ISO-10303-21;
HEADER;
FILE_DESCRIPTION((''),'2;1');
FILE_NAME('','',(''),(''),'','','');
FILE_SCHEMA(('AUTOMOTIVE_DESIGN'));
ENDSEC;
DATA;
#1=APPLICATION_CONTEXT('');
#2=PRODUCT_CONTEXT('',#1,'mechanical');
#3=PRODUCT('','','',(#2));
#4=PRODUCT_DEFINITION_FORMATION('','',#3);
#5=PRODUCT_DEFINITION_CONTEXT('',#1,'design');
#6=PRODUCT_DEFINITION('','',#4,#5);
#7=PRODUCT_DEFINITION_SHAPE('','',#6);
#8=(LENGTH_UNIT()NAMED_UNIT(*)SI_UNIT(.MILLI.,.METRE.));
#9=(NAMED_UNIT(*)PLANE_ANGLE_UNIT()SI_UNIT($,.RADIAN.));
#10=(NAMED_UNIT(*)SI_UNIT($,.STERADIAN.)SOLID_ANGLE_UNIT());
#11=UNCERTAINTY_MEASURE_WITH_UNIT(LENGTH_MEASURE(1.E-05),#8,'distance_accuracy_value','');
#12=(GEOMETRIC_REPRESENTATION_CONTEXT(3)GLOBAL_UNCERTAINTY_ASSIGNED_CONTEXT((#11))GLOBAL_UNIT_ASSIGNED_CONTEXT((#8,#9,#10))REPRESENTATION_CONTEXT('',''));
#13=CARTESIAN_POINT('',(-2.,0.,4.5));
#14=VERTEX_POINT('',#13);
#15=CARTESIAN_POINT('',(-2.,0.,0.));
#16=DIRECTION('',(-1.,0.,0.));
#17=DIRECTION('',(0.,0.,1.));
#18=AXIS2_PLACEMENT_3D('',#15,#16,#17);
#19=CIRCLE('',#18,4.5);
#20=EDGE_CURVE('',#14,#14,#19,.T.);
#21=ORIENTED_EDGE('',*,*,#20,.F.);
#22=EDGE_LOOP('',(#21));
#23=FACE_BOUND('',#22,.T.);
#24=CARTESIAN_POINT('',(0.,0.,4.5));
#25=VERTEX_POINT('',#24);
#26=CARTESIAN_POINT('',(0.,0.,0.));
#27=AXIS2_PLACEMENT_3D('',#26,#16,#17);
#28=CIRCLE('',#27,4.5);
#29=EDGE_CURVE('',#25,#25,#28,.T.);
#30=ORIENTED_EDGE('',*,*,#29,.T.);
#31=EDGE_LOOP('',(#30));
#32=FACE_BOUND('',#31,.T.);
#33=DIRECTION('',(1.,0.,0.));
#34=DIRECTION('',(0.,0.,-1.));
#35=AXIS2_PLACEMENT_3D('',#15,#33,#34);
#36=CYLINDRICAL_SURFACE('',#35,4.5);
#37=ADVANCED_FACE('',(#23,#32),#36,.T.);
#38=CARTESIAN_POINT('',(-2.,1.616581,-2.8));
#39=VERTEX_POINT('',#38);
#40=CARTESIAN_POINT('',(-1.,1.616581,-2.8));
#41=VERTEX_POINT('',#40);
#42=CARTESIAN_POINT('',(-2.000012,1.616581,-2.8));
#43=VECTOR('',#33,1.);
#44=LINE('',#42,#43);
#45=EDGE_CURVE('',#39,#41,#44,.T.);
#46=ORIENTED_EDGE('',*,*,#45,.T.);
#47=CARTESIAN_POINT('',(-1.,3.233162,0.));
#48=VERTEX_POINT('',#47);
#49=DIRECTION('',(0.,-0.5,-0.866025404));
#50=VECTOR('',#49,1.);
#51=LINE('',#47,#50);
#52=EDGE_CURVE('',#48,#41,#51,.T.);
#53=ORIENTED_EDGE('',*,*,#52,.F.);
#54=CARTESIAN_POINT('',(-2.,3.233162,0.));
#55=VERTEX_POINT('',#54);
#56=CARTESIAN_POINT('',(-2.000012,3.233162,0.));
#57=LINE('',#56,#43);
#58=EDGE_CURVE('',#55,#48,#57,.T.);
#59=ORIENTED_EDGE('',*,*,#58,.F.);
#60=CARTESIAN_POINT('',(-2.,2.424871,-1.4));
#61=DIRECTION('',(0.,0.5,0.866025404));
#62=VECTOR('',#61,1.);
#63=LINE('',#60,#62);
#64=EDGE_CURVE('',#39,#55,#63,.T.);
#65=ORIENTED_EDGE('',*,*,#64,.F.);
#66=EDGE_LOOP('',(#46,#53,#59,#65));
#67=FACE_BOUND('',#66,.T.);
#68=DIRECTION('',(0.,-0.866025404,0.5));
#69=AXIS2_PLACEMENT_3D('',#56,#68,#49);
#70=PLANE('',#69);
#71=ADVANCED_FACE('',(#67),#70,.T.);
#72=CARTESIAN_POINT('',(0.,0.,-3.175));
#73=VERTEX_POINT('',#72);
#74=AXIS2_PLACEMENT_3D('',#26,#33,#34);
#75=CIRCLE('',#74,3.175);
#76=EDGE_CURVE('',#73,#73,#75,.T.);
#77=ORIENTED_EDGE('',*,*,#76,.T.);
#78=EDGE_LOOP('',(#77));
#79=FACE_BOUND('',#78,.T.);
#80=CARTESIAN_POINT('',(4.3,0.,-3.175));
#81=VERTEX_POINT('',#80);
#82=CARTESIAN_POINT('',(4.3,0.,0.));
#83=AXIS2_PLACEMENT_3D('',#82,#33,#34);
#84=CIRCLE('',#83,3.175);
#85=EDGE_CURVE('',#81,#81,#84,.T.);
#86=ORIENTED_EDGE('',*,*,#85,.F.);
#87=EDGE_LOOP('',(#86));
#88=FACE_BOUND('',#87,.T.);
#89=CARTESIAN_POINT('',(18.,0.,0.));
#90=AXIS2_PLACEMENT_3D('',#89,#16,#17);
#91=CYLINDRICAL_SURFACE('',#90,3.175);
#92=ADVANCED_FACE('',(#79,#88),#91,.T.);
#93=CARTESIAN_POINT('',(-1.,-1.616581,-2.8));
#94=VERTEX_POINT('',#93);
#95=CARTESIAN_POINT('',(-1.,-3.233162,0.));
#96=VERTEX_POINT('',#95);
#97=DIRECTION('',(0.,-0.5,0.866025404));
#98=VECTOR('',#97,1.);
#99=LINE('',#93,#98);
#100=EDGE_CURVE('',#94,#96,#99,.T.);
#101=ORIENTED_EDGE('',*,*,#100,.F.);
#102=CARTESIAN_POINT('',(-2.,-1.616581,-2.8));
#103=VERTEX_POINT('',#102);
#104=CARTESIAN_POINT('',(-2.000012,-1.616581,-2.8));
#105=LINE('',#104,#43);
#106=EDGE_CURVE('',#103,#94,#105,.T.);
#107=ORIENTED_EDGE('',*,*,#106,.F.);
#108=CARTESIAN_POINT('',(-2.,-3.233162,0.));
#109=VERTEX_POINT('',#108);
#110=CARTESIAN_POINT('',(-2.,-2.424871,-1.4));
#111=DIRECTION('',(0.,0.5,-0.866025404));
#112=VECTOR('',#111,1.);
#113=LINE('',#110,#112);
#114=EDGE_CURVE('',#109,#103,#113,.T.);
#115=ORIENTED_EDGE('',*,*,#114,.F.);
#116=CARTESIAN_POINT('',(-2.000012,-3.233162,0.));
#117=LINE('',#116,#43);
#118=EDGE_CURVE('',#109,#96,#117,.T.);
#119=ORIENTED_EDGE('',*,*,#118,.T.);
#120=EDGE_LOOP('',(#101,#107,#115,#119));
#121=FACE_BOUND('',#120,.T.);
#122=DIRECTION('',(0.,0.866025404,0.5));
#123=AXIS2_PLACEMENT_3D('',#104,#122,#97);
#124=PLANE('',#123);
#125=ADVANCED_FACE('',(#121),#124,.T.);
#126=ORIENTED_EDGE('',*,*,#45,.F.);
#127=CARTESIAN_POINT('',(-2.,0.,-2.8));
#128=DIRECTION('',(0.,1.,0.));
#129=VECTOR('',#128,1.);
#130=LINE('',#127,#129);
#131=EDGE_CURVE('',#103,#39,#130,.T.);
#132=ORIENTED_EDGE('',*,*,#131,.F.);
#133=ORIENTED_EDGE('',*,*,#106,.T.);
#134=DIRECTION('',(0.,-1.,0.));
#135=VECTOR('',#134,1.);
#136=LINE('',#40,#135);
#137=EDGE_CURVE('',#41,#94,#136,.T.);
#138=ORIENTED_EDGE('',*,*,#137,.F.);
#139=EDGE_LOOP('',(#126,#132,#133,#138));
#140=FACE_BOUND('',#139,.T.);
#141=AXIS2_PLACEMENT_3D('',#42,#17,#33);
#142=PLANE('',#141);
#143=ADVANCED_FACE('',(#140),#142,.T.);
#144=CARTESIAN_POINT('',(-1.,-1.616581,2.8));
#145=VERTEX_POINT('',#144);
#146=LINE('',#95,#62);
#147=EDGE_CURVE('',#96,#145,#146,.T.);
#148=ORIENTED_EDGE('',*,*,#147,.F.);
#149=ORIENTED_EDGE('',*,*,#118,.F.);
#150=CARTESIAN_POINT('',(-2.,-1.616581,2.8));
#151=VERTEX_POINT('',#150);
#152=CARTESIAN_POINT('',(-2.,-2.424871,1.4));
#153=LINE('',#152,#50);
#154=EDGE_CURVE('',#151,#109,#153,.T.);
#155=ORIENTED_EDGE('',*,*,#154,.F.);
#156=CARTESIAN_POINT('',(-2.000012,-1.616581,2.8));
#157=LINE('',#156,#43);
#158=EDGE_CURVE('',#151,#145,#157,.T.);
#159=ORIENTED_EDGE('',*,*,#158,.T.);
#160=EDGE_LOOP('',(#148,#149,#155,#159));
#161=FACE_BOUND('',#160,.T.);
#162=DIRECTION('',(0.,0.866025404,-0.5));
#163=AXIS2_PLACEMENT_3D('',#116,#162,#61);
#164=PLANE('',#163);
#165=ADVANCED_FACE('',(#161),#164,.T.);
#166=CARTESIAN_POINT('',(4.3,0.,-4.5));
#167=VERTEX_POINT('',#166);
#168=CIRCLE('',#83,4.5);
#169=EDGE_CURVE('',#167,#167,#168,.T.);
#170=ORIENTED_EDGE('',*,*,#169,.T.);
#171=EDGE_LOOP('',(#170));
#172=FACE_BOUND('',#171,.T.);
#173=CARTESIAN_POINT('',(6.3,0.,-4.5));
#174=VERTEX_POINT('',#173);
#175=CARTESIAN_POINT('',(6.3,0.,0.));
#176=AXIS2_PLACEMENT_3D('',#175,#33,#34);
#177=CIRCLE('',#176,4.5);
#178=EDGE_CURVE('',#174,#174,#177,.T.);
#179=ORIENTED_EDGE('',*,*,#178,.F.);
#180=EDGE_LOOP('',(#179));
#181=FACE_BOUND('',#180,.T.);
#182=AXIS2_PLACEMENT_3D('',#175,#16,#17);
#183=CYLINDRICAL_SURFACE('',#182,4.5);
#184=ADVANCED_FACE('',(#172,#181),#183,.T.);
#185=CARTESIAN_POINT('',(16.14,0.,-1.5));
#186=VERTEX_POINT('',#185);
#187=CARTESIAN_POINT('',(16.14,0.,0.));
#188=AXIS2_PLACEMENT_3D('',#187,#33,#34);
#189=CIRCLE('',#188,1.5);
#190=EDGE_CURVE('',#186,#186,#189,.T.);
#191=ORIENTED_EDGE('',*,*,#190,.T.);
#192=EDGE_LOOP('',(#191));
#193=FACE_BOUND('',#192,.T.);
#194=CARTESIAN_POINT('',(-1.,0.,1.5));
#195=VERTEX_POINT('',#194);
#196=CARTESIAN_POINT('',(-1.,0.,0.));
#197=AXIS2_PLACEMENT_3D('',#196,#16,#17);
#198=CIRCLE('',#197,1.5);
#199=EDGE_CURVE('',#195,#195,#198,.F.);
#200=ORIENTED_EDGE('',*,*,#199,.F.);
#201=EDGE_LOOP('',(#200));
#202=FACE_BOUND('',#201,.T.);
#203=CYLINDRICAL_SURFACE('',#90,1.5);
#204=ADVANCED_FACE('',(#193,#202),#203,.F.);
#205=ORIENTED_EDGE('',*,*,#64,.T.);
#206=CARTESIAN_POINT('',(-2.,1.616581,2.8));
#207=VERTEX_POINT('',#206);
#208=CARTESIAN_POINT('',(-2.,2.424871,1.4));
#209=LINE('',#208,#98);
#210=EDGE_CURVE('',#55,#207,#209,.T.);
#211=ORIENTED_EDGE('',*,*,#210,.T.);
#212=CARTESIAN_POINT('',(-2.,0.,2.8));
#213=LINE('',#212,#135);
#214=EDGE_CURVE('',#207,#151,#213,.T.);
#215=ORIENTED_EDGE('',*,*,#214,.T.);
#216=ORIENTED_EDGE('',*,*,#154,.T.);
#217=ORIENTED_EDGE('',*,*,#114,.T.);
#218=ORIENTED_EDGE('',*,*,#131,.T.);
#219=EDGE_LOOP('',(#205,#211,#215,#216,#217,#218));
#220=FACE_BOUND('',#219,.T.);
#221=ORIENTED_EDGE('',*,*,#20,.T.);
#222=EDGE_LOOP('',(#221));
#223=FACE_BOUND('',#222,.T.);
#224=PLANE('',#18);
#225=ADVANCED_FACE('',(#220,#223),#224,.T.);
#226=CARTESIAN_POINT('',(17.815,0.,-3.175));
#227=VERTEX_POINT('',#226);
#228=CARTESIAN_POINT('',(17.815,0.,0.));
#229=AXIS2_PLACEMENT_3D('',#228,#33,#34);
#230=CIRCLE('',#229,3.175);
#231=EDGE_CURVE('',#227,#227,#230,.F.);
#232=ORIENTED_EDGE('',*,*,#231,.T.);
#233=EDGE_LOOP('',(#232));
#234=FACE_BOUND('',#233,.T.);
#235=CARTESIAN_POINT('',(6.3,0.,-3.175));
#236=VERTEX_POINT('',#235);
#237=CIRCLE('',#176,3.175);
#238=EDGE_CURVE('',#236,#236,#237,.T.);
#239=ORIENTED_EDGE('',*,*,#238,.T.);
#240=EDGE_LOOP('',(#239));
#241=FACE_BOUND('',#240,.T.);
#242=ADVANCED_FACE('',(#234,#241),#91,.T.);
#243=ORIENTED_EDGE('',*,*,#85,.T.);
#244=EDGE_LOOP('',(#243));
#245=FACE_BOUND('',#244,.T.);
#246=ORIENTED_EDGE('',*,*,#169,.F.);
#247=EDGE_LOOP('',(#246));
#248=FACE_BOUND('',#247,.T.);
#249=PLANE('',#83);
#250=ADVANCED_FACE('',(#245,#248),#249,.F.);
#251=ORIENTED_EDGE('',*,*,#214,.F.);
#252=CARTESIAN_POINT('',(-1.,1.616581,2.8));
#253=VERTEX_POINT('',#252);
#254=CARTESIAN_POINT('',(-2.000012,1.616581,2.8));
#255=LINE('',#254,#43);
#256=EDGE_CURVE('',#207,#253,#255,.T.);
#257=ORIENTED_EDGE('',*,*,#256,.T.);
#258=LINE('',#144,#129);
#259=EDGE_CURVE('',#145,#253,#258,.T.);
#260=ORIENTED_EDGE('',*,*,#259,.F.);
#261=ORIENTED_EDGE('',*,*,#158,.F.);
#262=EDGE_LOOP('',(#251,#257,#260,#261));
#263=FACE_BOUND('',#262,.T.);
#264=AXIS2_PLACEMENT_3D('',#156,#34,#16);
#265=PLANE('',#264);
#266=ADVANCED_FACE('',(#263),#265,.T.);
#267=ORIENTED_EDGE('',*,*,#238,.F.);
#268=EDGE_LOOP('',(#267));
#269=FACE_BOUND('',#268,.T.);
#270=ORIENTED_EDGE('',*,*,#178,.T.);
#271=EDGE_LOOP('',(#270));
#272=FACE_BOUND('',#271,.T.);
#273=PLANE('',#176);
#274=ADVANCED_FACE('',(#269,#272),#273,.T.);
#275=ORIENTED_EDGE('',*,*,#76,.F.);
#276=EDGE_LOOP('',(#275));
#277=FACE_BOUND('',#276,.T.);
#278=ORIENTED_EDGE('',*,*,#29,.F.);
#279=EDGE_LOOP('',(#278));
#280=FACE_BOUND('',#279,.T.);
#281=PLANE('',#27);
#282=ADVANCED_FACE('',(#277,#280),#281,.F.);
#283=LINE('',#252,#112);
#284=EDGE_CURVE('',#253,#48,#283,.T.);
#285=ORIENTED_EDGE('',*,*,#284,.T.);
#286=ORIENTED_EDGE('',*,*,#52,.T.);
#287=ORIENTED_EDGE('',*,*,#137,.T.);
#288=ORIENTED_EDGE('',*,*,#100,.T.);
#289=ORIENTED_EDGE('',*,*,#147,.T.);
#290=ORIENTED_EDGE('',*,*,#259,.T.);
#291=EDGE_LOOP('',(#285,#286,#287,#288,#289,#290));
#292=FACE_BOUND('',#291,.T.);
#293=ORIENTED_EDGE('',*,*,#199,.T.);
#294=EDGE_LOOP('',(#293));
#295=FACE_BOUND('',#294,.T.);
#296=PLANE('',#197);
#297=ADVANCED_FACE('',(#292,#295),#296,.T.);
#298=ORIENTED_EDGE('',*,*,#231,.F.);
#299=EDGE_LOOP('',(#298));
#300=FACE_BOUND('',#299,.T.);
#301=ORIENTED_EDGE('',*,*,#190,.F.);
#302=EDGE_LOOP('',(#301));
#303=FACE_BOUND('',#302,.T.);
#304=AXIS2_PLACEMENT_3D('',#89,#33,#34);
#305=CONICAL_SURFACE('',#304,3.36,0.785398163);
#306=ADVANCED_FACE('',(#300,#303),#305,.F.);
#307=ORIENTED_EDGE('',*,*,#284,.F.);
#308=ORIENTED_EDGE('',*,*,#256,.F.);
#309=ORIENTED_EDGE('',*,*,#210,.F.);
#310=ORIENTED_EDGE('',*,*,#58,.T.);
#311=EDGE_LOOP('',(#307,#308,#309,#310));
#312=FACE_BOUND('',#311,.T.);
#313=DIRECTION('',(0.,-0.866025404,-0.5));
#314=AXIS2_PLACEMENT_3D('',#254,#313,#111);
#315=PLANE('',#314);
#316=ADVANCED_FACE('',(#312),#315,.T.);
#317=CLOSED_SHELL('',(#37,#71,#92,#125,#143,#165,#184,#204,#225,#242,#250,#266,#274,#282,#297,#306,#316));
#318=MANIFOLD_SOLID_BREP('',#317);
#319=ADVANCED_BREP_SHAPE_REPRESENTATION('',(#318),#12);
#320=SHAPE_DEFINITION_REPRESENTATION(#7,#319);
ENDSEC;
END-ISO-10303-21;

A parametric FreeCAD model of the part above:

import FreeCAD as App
import Part
import Sketcher

V = App.Vector
Q = App.Units.Quantity

doc = App.newDocument("Part")
params = doc.addObject("Spreadsheet::Sheet", "Params")
for row, (alias, value) in enumerate([
    ("sketch1_diameter", "6.35 mm"),
    ("pad1_length", "18 mm"),
    ("sketch2_diameter", "9 mm"),
    ("pad2_length", "2 mm"),
    ("sketch3_diameter", "9 mm"),
    ("pad3_length", "2 mm"),
    ("sketch4_diameter", "3 mm"),
    ("pocket2_length", "21.988092 mm"),
    ("pocket2_length2", "1 mm"),
    ("sketch6_diameter", "3 mm"),
    ("hole_diameter", "3 mm"),
    ("hole_depth", "5.098709 mm"),
    ("hole_csink_diameter", "6.72 mm"),
], start=1):
    params.set(f"A{row}", alias)
    params.set(f"B{row}", "=" + value)
    params.setAlias(f"B{row}", alias)

body = doc.addObject("PartDesign::Body", "Body")

# Sketch on YZ plane
sketch1 = doc.addObject("Sketcher::SketchObject", "Sketch")
body.addObject(sketch1)
sketch1.AttachmentSupport = (doc.YZ_Plane, [""])
sketch1.MapMode = "FlatFace"
sketch1.addGeometry(Part.Circle(V(0, 0, 0), V(0, 0, 1), 3.2), False)
sketch1.addConstraint(Sketcher.Constraint("Coincident", 0, 3, -1, 1))
sketch1.addConstraint(Sketcher.Constraint("Diameter", 0, 6.35))
sketch1.setExpression("Constraints[1]", "Params.sketch1_diameter")
pad1 = doc.addObject("PartDesign::Pad", "Pad")
body.addObject(pad1)
pad1.Profile = sketch1
pad1.setExpression("Length", "Params.pad1_length")

# Sketch on YZ plane
sketch2 = doc.addObject("Sketcher::SketchObject", "Sketch001")
body.addObject(sketch2)
sketch2.AttachmentSupport = (doc.YZ_Plane, [""])
sketch2.MapMode = "FlatFace"
sketch2.addGeometry(Part.Circle(V(0, 0, 0), V(0, 0, 1), 4.5), False)
sketch2.addConstraint(Sketcher.Constraint("Coincident", 0, 3, -1, 1))
sketch2.addConstraint(Sketcher.Constraint("Diameter", 0, 9.0))
sketch2.setExpression("Constraints[1]", "Params.sketch2_diameter")
pad2 = doc.addObject("PartDesign::Pad", "Pad001")
body.addObject(pad2)
pad2.Profile = sketch2
pad2.setExpression("Length", "Params.pad2_length")
pad2.Reversed = True

# Sketch on YZ plane
sketch3 = doc.addObject("Sketcher::SketchObject", "Sketch002")
body.addObject(sketch3)
sketch3.AttachmentSupport = (doc.YZ_Plane, [""])
sketch3.MapMode = "FlatFace"
sketch3.AttachmentOffset = App.Placement(V(0, 0, 6.3), App.Rotation())
sketch3.addGeometry(Part.Circle(V(0, 0, 0), V(0, 0, 1), 4.5), False)
sketch3.addConstraint(Sketcher.Constraint("Coincident", 0, 3, -1, 1))
sketch3.addConstraint(Sketcher.Constraint("Diameter", 0, 9.0))
sketch3.setExpression("Constraints[1]", "Params.sketch3_diameter")
pad3 = doc.addObject("PartDesign::Pad", "Pad002")
body.addObject(pad3)
pad3.Profile = sketch3
pad3.setExpression("Length", "Params.pad3_length")
pad3.Reversed = True

# Sketch on YZ plane
sketch4 = doc.addObject("Sketcher::SketchObject", "Sketch003")
body.addObject(sketch4)
sketch4.AttachmentSupport = (doc.YZ_Plane, [""])
sketch4.MapMode = "FlatFace"
sketch4.AttachmentOffset = App.Placement(V(0, 0, -2), App.Rotation())
sketch4.addGeometry(Part.Circle(V(0, 0, 0), V(0, 0, 1), 1.5), False)
sketch4.addConstraint(Sketcher.Constraint("Coincident", 0, 3, -1, 1))
sketch4.addConstraint(Sketcher.Constraint("Diameter", 0, 3.0))
sketch4.setExpression("Constraints[1]", "Params.sketch4_diameter")
pocket1 = doc.addObject("PartDesign::Pocket", "Pocket")
body.addObject(pocket1)
pocket1.Profile = sketch4
pocket1.Type = "ThroughAll"
pocket1.Midplane = True

# Sketch on YZ plane
sketch5 = doc.addObject("Sketcher::SketchObject", "Sketch004")
body.addObject(sketch5)
sketch5.AttachmentSupport = (doc.YZ_Plane, [""])
sketch5.MapMode = "FlatFace"
sketch5.AttachmentOffset = App.Placement(V(0, 0, -2), App.Rotation())
sketch5.addGeometry(Part.LineSegment(V(-1.6, 2.8, 0), V(1.6, 2.8, 0)), False)
sketch5.addGeometry(Part.LineSegment(V(1.6, 2.8, 0), V(3.2, 0, 0)), False)
sketch5.addGeometry(Part.LineSegment(V(3.2, 0, 0), V(1.6, -2.8, 0)), False)
sketch5.addGeometry(Part.LineSegment(V(1.6, -2.8, 0), V(-1.6, -2.8, 0)), False)
sketch5.addGeometry(Part.LineSegment(V(-1.6, -2.8, 0), V(-3.2, 0, 0)), False)
sketch5.addGeometry(Part.LineSegment(V(-3.2, 0, 0), V(-1.6, 2.8, 0)), False)
sketch5.addConstraint(Sketcher.Constraint("Coincident", 0, 2, 1, 1))
sketch5.addConstraint(Sketcher.Constraint("Coincident", 1, 2, 2, 1))
sketch5.addConstraint(Sketcher.Constraint("Coincident", 2, 2, 3, 1))
sketch5.addConstraint(Sketcher.Constraint("Coincident", 3, 2, 4, 1))
sketch5.addConstraint(Sketcher.Constraint("Coincident", 4, 2, 5, 1))
sketch5.addConstraint(Sketcher.Constraint("Coincident", 5, 2, 0, 1))
sketch5.addConstraint(Sketcher.Constraint("Horizontal", 0))
sketch5.addConstraint(Sketcher.Constraint("Horizontal", 3))
sketch5.addConstraint(Sketcher.Constraint("Symmetric", 0, 2, 3, 2, -1, 1))
sketch5.addConstraint(Sketcher.Constraint("Symmetric", 1, 2, 4, 2, -1, 1))
sketch5.addConstraint(Sketcher.Constraint("PointOnObject", 1, 2, -1))
sketch5.addConstraint(Sketcher.Constraint("Parallel", 2, 5))
sketch5.addConstraint(Sketcher.Constraint("Vertical", 0, 2, 2, 2))
sketch5.addConstraint(Sketcher.Constraint("Angle", 1, Q("-60 deg")))
sketch5.addConstraint(Sketcher.Constraint("DistanceY", -1, 1, 0, 2, 2.8))
sketch5.addConstraint(Sketcher.Constraint("DistanceX", 0, 1, 0, 2, 3.233162))
pocket2 = doc.addObject("PartDesign::Pocket", "Pocket001")
body.addObject(pocket2)
pocket2.Profile = sketch5
pocket2.Type = "TwoLengths"
pocket2.setExpression("Length", "Params.pocket2_length")
pocket2.setExpression("Length2", "Params.pocket2_length2")

# Sketch on YZ plane
sketch6 = doc.addObject("Sketcher::SketchObject", "Sketch005")
body.addObject(sketch6)
sketch6.AttachmentSupport = (doc.YZ_Plane, [""])
sketch6.MapMode = "FlatFace"
sketch6.AttachmentOffset = App.Placement(V(0, 0, 18), App.Rotation())
sketch6.addGeometry(Part.Circle(V(0, 0, 0), V(0, 0, 1), 1.5), False)
sketch6.addConstraint(Sketcher.Constraint("Coincident", 0, 3, -1, 1))
sketch6.addConstraint(Sketcher.Constraint("Diameter", 0, 3.0))
sketch6.setExpression("Constraints[1]", "Params.sketch6_diameter")
doc.recompute()
hole = doc.addObject("PartDesign::Hole", "Hole")
body.addObject(hole)
hole.Profile = sketch6
hole.ThreadType = "None"
hole.setExpression("Diameter", "Params.hole_diameter")
hole.DepthType = "Dimension"
hole.setExpression("Depth", "Params.hole_depth")
hole.DrillPoint = "Angled"
hole.DrillPointAngle = 118
hole.HoleCutType = "Countersink"
hole.setExpression("HoleCutDiameter", "Params.hole_csink_diameter")
hole.HoleCutCountersinkAngle = 90

doc.recompute()
